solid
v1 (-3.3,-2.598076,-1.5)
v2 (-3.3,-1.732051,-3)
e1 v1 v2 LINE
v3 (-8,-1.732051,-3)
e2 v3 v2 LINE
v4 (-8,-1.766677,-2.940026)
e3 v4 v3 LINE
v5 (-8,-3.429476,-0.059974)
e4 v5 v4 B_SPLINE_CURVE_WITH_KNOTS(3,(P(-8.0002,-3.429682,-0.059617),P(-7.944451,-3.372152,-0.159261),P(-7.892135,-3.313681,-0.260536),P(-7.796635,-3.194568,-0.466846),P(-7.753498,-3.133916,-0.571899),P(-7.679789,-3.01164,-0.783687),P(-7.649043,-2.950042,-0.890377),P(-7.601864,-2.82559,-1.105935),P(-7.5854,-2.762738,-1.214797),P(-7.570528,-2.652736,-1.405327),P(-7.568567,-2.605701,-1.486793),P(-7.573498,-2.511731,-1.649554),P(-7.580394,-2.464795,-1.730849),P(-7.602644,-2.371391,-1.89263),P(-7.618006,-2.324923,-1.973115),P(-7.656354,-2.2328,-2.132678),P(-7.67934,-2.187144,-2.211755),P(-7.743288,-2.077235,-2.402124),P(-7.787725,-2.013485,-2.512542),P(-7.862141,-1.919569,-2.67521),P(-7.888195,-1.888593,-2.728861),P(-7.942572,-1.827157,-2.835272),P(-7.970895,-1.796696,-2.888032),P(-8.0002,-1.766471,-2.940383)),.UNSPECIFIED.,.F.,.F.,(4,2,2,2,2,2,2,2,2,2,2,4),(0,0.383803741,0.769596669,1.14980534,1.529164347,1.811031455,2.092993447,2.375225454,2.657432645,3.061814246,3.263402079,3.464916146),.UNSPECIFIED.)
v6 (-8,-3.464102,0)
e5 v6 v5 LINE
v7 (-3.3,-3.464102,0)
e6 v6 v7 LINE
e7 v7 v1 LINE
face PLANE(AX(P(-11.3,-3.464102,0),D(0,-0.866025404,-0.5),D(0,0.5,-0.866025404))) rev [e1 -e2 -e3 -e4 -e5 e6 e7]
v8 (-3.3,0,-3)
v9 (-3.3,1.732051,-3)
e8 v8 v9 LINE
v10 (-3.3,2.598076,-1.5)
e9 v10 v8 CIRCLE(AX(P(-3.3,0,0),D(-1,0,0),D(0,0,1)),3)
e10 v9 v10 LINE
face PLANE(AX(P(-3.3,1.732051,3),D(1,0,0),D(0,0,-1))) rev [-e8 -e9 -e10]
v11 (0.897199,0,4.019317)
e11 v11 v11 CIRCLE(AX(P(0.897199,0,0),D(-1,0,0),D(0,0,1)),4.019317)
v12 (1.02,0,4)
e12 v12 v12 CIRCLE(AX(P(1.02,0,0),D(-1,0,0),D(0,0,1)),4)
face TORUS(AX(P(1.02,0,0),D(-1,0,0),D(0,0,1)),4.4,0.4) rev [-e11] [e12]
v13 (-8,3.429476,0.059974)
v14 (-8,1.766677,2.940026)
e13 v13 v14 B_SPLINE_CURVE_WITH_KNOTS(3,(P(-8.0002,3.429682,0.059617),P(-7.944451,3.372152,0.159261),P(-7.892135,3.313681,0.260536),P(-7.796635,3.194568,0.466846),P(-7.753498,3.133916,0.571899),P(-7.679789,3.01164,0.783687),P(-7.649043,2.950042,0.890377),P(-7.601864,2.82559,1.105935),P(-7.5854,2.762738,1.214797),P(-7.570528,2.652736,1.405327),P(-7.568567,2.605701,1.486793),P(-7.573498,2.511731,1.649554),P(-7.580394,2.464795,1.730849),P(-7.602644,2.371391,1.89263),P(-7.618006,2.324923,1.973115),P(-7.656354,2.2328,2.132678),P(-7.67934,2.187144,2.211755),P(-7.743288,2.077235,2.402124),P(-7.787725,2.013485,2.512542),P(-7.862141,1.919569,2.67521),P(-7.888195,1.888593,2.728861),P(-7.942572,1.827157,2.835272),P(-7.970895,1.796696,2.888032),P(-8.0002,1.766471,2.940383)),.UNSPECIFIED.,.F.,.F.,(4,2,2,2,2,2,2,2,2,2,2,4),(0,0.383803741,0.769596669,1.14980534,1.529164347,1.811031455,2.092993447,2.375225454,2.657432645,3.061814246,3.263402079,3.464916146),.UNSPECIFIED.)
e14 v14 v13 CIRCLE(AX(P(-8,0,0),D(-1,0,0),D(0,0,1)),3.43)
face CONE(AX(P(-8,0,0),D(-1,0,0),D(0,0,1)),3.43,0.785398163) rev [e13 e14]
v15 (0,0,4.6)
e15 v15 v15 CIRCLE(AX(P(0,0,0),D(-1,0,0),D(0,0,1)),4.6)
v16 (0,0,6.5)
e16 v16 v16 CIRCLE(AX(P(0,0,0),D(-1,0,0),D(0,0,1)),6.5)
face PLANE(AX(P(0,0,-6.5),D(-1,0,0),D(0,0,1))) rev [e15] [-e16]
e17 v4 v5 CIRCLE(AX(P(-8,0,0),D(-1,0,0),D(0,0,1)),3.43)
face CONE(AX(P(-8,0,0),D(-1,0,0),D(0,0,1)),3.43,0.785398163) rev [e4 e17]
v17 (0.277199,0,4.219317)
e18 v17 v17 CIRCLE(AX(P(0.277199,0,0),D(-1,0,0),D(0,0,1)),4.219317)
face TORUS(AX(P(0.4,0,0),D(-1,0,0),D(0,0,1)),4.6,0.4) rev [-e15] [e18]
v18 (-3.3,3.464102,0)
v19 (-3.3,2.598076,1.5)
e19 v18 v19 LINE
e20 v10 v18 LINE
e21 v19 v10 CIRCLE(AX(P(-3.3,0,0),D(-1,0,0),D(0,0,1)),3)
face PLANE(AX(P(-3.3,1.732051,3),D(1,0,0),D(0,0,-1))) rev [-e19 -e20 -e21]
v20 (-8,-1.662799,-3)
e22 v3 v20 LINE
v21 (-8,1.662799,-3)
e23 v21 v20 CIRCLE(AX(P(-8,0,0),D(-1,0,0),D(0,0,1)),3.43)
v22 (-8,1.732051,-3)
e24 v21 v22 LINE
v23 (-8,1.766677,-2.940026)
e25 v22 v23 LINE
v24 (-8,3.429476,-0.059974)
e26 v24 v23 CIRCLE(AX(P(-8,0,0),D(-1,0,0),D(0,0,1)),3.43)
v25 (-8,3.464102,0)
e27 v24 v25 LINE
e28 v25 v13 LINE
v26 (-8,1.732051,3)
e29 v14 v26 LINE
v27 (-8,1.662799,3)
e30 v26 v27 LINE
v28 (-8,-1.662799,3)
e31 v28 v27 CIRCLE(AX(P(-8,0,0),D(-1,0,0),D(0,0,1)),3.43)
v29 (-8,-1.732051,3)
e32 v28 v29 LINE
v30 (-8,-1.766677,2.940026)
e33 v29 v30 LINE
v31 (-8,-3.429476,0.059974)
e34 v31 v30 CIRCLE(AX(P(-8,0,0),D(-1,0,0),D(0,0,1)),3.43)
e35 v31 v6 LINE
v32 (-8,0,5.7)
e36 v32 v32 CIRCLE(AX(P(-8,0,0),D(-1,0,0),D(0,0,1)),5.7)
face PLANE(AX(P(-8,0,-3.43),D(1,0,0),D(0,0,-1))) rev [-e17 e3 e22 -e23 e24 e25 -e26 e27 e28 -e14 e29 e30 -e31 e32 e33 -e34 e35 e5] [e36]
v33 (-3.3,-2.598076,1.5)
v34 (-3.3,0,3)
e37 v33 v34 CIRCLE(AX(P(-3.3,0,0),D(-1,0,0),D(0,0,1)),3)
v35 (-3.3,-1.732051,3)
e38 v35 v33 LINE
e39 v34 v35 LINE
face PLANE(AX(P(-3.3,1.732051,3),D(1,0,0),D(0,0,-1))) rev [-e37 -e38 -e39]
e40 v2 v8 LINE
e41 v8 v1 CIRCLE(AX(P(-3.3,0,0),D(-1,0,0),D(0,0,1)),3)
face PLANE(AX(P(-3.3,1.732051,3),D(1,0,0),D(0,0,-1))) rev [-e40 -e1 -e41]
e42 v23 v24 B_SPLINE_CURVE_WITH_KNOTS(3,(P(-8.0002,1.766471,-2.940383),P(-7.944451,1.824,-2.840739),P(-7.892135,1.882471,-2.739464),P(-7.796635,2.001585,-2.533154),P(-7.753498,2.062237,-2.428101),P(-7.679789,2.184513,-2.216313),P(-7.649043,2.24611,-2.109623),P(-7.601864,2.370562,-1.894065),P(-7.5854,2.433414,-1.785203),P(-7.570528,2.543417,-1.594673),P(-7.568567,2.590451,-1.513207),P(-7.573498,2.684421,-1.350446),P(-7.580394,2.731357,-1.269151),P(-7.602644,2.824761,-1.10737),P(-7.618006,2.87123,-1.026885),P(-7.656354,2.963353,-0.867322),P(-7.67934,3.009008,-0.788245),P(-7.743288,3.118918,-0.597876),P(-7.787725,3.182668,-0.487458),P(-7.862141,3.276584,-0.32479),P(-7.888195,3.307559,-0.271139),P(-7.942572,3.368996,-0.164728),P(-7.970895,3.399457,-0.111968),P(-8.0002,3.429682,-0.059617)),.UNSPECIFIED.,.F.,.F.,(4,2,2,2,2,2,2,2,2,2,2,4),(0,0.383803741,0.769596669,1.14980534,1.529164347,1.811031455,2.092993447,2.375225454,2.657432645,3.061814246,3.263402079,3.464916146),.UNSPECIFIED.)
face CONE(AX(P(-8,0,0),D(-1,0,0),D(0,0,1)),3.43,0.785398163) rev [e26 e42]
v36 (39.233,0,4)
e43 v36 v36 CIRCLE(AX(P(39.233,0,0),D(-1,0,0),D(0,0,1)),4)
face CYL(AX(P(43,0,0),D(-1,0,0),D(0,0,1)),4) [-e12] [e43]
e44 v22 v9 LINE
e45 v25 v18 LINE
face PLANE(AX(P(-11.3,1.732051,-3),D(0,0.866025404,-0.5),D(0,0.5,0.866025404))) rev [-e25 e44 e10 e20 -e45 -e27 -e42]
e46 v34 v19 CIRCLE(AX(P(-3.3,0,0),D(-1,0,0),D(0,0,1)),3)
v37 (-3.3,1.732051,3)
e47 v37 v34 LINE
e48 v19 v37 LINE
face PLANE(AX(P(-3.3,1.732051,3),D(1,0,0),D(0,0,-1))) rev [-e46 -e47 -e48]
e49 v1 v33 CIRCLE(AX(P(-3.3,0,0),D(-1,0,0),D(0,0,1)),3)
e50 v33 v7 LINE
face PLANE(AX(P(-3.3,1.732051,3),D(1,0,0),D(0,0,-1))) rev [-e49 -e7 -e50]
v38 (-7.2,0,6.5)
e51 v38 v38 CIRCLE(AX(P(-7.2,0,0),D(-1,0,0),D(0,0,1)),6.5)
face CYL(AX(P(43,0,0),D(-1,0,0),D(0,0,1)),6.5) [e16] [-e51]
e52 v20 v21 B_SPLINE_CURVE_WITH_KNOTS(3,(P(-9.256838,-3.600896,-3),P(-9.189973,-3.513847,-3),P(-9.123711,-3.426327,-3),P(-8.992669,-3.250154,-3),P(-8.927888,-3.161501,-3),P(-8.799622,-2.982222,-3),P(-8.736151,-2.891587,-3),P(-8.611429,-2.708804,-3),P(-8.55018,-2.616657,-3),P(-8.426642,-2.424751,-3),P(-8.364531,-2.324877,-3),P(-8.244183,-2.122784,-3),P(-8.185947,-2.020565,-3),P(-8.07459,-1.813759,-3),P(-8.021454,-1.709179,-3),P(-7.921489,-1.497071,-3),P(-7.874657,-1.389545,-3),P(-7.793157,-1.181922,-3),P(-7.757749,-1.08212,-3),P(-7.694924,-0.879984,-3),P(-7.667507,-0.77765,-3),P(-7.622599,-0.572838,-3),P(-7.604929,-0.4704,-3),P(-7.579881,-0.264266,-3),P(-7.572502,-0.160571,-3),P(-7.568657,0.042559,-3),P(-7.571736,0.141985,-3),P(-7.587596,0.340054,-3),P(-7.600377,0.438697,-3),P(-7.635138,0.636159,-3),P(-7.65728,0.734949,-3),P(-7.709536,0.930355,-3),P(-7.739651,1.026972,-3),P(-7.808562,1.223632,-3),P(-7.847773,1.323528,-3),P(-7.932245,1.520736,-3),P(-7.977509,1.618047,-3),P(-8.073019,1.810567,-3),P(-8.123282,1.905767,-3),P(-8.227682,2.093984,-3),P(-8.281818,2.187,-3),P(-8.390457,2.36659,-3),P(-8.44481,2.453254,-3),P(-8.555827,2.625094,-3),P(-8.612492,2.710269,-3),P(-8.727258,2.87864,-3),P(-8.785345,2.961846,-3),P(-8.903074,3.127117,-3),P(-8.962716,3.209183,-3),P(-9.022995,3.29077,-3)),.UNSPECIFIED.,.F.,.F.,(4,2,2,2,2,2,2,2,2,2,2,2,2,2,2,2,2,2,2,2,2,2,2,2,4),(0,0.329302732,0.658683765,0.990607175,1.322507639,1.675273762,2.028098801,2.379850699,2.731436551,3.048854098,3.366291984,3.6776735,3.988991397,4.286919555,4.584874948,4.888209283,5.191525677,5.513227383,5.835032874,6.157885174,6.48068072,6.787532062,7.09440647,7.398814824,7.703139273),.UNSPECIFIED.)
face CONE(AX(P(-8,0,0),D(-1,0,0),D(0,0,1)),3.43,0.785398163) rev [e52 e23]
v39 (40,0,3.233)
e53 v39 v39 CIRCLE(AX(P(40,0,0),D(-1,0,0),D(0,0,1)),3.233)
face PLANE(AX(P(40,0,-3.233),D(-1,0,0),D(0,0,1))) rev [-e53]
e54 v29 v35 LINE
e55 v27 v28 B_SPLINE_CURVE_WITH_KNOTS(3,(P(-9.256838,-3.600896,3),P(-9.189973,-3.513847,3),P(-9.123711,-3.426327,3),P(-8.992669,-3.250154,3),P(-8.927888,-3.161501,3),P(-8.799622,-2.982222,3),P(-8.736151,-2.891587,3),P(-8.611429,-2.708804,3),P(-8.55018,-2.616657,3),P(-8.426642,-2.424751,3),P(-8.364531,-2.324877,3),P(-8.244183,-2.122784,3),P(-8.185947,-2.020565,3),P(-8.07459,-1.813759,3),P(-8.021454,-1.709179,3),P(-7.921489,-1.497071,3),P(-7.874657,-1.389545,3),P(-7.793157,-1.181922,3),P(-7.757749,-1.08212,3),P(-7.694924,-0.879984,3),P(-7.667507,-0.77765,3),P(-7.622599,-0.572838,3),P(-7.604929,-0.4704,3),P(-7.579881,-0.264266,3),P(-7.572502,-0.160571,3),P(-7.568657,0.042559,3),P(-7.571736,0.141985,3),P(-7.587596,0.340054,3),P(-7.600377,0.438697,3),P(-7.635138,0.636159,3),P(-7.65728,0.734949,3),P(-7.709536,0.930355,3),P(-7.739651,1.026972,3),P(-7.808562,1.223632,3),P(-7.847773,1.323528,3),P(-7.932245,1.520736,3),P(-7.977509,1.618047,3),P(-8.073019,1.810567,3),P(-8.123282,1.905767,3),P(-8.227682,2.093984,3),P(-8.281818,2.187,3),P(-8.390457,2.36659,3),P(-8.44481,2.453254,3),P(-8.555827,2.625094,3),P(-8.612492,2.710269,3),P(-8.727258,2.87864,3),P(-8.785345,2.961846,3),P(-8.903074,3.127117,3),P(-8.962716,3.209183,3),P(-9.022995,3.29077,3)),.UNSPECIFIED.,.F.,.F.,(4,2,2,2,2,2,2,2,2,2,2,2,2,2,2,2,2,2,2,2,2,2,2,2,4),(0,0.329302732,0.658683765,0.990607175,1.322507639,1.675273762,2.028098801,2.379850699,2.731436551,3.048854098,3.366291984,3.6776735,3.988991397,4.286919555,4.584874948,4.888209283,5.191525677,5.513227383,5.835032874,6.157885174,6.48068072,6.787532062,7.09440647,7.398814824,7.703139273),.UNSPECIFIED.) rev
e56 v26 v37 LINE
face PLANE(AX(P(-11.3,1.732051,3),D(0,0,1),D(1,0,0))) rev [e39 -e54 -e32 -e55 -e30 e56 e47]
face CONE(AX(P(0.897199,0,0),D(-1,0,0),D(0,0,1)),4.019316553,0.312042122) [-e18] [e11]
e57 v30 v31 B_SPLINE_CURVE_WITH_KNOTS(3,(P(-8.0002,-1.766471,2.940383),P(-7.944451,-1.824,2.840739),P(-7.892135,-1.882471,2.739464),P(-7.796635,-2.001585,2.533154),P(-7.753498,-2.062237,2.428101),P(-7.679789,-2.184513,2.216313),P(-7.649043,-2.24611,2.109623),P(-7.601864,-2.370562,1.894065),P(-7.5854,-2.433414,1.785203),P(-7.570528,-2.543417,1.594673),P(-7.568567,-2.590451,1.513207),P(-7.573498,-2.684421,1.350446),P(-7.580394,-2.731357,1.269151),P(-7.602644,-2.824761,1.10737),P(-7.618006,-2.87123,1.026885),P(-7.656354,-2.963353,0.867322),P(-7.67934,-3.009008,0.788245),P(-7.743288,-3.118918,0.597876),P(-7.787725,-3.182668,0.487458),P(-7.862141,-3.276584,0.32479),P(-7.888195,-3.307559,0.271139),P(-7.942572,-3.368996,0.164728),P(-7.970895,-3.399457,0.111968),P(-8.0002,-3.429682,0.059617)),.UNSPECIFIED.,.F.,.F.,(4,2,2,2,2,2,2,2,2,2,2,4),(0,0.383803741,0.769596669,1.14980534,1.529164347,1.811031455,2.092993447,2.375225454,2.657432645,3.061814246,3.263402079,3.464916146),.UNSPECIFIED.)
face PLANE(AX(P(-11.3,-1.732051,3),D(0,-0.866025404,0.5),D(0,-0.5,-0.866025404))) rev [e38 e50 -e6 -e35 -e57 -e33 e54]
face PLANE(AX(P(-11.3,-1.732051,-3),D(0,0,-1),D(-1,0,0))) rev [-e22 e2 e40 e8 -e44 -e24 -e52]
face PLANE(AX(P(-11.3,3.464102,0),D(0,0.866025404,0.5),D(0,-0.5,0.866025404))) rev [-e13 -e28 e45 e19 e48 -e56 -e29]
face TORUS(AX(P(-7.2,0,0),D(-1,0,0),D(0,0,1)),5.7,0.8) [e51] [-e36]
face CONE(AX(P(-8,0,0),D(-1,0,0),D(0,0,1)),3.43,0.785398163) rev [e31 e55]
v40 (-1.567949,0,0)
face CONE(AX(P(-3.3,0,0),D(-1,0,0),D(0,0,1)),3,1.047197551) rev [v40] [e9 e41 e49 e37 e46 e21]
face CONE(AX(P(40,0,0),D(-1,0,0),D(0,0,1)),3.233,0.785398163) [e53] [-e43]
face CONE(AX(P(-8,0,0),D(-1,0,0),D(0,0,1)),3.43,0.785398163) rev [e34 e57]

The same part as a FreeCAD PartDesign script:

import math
import FreeCAD as App
import Part
import Sketcher
from FreeCAD import Vector
Q = App.Units.Quantity


def add_polygon(sketch, points):
    """Adds a closed chain of lines whose ends are joined by coincident constraints."""
    first, n = sketch.GeometryCount, len(points)
    for a, b in zip(points, points[1:] + points[:1]):
        sketch.addGeometry(Part.LineSegment(App.Vector(*a, 0), App.Vector(*b, 0)), False)
    for i in range(n):
        sketch.addConstraint(Sketcher.Constraint("Coincident", first + i, 2, first + (i + 1) % n, 1))

doc = App.newDocument("Part")
params = doc.addObject("Spreadsheet::Sheet", "Params")
for row, (alias, value) in enumerate([
    ("sketch1_radius", "0.4 mm"),
    ("sketch1_radius2", "0.8 mm"),
    ("sketch1_width", "7.2 mm"),
    ("sketch1_height", "1.9 mm"),
    ("sketch1_width2", "4.27 mm"),
    ("revolution_angle", "360 deg"),
    ("pocket1_length", "8 mm"),
    ("sketch3_diameter", "9.75 mm"),
    ("pad1_length", "4.161899 mm"),
], start=1):
    params.set(f"A{row}", alias)
    params.set(f"B{row}", "=" + value)
    params.setAlias(f"B{row}", alias)

body = doc.addObject("PartDesign::Body", "Body")

# Sketch on XZ plane
sketch1 = body.newObject("Sketcher::SketchObject", "Sketch")
sketch1.AttachmentSupport = (doc.getObject("XZ_Plane"), [""])
sketch1.MapMode = "FlatFace"
sketch1.addGeometry([
    Part.LineSegment(Vector(-3.3, -3, 0), Vector(-1.567949, 0, 0)),  # 0
    Part.LineSegment(Vector(-1.567949, 0, 0), Vector(40, 0, 0)),  # 1
    Part.LineSegment(Vector(40, 0, 0), Vector(40, -3.233, 0)),  # 2
    Part.LineSegment(Vector(40, -3.233, 0), Vector(39.233, -4, 0)),  # 3
    Part.LineSegment(Vector(39.233, -4, 0), Vector(1.02, -4, 0)),  # 4
    Part.ArcOfCircle(Part.Circle(Vector(1.02, -4.4, 0), Vector(0, 0, 1), 0.4), math.radians(90), math.radians(107.878697)),  # 5
    Part.LineSegment(Vector(0.897199, -4.019317, 0), Vector(0.277199, -4.219317, 0)),  # 6
    Part.ArcOfCircle(Part.Circle(Vector(0.4, -4.6, 0), Vector(0, 0, 1), 0.4), math.radians(107.878697), math.radians(180)),  # 7
    Part.LineSegment(Vector(0, -4.6, 0), Vector(0, -6.5, 0)),  # 8
    Part.LineSegment(Vector(0, -6.5, 0), Vector(-7.2, -6.5, 0)),  # 9
    Part.ArcOfCircle(Part.Circle(Vector(-7.2, -5.7, 0), Vector(0, 0, 1), 0.8), math.radians(180), math.radians(270)),  # 10
    Part.LineSegment(Vector(-8, -5.7, 0), Vector(-8, -3.43, 0)),  # 11
    Part.LineSegment(Vector(-8, -3.43, 0), Vector(-7.57, -3, 0)),  # 12
    Part.LineSegment(Vector(-7.57, -3, 0), Vector(-3.3, -3, 0)),  # 13
], False)
sketch1.addConstraint([
    Sketcher.Constraint("Coincident", 0, 2, 1, 1),
    Sketcher.Constraint("Coincident", 1, 2, 2, 1),
    Sketcher.Constraint("Coincident", 2, 2, 3, 1),
    Sketcher.Constraint("Coincident", 3, 2, 4, 1),
    Sketcher.Constraint("Tangent", 4, 2, 5, 1),
    Sketcher.Constraint("Tangent", 5, 2, 6, 1),
    Sketcher.Constraint("Tangent", 6, 2, 7, 1),
    Sketcher.Constraint("Tangent", 7, 2, 8, 1),
    Sketcher.Constraint("Coincident", 8, 2, 9, 1),
    Sketcher.Constraint("Tangent", 9, 2, 10, 2),
    Sketcher.Constraint("Tangent", 10, 1, 11, 1),
    Sketcher.Constraint("Coincident", 11, 2, 12, 1),
    Sketcher.Constraint("Coincident", 12, 2, 13, 1),
    Sketcher.Constraint("Coincident", 13, 2, 0, 1),
    Sketcher.Constraint("Horizontal", 1),
    Sketcher.Constraint("Vertical", 2),
    Sketcher.Constraint("Horizontal", 4),
    Sketcher.Constraint("Vertical", 8),
    Sketcher.Constraint("Horizontal", 9),
    Sketcher.Constraint("Vertical", 11),
    Sketcher.Constraint("Horizontal", 13),
    Sketcher.Constraint("Equal", 5, 7),
    Sketcher.Constraint("PointOnObject", 0, 2, -1),
    Sketcher.Constraint("PointOnObject", 7, 2, -2),
    Sketcher.Constraint("Parallel", 3, 12),
    Sketcher.Constraint("Radius", 5, Q("0.4 mm")),
    Sketcher.Constraint("Radius", 10, Q("0.8 mm")),
    Sketcher.Constraint("Angle", 0, Q("60 deg")),
    Sketcher.Constraint("Angle", 3, Q("-135 deg")),
    Sketcher.Constraint("DistanceX", 9, 2, 9, 1, Q("7.2 mm")),
    Sketcher.Constraint("DistanceY", 8, 2, 8, 1, Q("1.9 mm")),
    Sketcher.Constraint("DistanceX", -1, 1, 1, 2, Q("40 mm")),
    Sketcher.Constraint("DistanceY", 3, 2, -1, 1, Q("4 mm")),
    Sketcher.Constraint("DistanceY", 12, 2, -1, 1, Q("3 mm")),
    Sketcher.Constraint("DistanceX", 13, 1, 13, 2, Q("4.27 mm")),
    Sketcher.Constraint("DistanceY", 11, 1, 11, 2, Q("2.27 mm")),
    Sketcher.Constraint("DistanceY", 7, 3, -1, 1, Q("4.6 mm")),
    Sketcher.Constraint("DistanceX", 4, 2, 4, 1, Q("38.213 mm")),
    Sketcher.Constraint("DistanceY", 2, 2, 2, 1, Q("3.233 mm")),
])
sketch1.setExpression("Constraints[25]", "Params.sketch1_radius")
sketch1.setExpression("Constraints[26]", "Params.sketch1_radius2")
sketch1.setExpression("Constraints[29]", "Params.sketch1_width")
sketch1.setExpression("Constraints[30]", "Params.sketch1_height")
sketch1.setExpression("Constraints[34]", "Params.sketch1_width2")
revolution = body.newObject("PartDesign::Revolution", "Revolution")
revolution.Profile = sketch1
revolution.ReferenceAxis = (sketch1, ["H_Axis"])
revolution.setExpression("Angle", "Params.revolution_angle")

# Sketch on YZ plane
sketch2 = body.newObject("Sketcher::SketchObject", "Sketch001")
sketch2.AttachmentSupport = (doc.getObject("YZ_Plane"), [""])
sketch2.MapMode = "FlatFace"
sketch2.AttachmentOffset = App.Placement(Vector(0, 0, -3.3), App.Rotation())
add_polygon(sketch2, [(1.732051, 3), (-1.732051, 3), (-3.464102, 0), (-1.732051, -3), (1.732051, -3), (3.464102, 0)])  # lines 0-5
sketch2.addConstraint([
    Sketcher.Constraint("Horizontal", 0),
    Sketcher.Constraint("Horizontal", 3),
    Sketcher.Constraint("Symmetric", 0, 2, 3, 2, -1, 1),
    Sketcher.Constraint("Symmetric", 1, 2, 4, 2, -1, 1),
    Sketcher.Constraint("PointOnObject", 1, 2, -1),
    Sketcher.Constraint("Parallel", 2, 5),
    Sketcher.Constraint("Vertical", 0, 2, 2, 2),
    Sketcher.Constraint("Angle", 1, Q("-120 deg")),
    Sketcher.Constraint("DistanceY", -1, 1, 0, 2, Q("3 mm")),
    Sketcher.Constraint("DistanceX", 0, 2, 0, 1, Q("3.464102 mm")),
])
pocket1 = body.newObject("PartDesign::Pocket", "Pocket")
pocket1.Profile = sketch2
pocket1.setExpression("Length", "Params.pocket1_length")
body2 = doc.addObject("PartDesign::Body", "Body001")

# Sketch on YZ plane
sketch3 = body2.newObject("Sketcher::SketchObject", "Sketch002")
sketch3.AttachmentSupport = (doc.getObject("YZ_Plane001"), [""])
sketch3.MapMode = "FlatFace"
sketch3.addGeometry(Part.Circle(Vector(0, 0, 0), Vector(0, 0, 1), 4.875), False)
sketch3.addConstraint([
    Sketcher.Constraint("Coincident", 0, 3, -1, 1),
    Sketcher.Constraint("Diameter", 0, Q("9.75 mm")),
])
sketch3.setExpression("Constraints[1]", "Params.sketch3_diameter")
pad1 = body2.newObject("PartDesign::Pad", "Pad")
pad1.Profile = sketch3
pad1.setExpression("Length", "Params.pad1_length")
pad1.Reversed = True
body2.Visibility = False

doc.recompute()
